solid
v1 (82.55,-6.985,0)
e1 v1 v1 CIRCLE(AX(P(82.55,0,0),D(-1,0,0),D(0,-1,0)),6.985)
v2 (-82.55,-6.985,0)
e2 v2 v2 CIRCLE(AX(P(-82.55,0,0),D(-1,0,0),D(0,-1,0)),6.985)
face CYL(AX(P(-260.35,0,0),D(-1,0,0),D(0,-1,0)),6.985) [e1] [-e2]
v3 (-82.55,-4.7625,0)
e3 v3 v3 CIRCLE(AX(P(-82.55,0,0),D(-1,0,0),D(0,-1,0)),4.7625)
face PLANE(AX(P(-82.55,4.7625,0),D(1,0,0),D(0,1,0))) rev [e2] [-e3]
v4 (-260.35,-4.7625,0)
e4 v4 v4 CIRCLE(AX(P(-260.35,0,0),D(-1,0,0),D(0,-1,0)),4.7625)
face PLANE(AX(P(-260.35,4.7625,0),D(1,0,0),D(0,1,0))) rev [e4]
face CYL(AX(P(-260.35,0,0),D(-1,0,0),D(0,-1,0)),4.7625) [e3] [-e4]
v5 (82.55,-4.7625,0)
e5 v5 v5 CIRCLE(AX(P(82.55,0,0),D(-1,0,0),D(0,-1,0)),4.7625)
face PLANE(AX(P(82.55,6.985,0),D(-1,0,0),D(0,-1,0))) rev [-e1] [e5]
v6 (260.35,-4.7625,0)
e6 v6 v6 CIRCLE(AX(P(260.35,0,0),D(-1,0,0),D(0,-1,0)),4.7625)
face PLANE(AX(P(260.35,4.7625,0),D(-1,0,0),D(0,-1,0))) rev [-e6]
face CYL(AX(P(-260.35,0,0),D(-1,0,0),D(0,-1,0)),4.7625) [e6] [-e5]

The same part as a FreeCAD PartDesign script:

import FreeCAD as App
import Part
import Sketcher
from FreeCAD import Vector
Q = App.Units.Quantity


def add_polygon(sketch, points):
    """Adds a closed chain of lines whose ends are joined by coincident constraints."""
    first, n = sketch.GeometryCount, len(points)
    for a, b in zip(points, points[1:] + points[:1]):
        sketch.addGeometry(Part.LineSegment(App.Vector(*a, 0), App.Vector(*b, 0)), False)
    for i in range(n):
        sketch.addConstraint(Sketcher.Constraint("Coincident", first + i, 2, first + (i + 1) % n, 1))

doc = App.newDocument("Part")
body = doc.addObject("PartDesign::Body", "Body")

# Sketch on XY plane
sketch1 = body.newObject("Sketcher::SketchObject", "Sketch")
sketch1.AttachmentSupport = (doc.getObject("XY_Plane"), [""])
sketch1.MapMode = "FlatFace"
add_polygon(sketch1, [(-82.5, 4.8), (-260.4, 4.8), (-260.4, 0), (260.4, 0), (260.4, 4.8), (82.5, 4.8), (82.5, 7), (-82.5, 7)])  # lines 0-7
sketch1.addConstraint([
    Sketcher.Constraint("Horizontal", 0),
    Sketcher.Constraint("Vertical", 1),
    Sketcher.Constraint("Horizontal", 2),
    Sketcher.Constraint("Vertical", 3),
    Sketcher.Constraint("Horizontal", 4),
    Sketcher.Constraint("Vertical", 5),
    Sketcher.Constraint("Horizontal", 6),
    Sketcher.Constraint("Vertical", 7),
    Sketcher.Constraint("Symmetric", 1, 2, 2, 2, -1, 1),
    Sketcher.Constraint("Symmetric", 4, 2, 7, 2, -2),
    Sketcher.Constraint("DistanceX", 0, 2, 0, 1, Q("7 in")),
    Sketcher.Constraint("DistanceX", 2, 1, 2, 2, Q("20.5 in")),
    Sketcher.Constraint("DistanceY", 1, 2, 1, 1, Q("0.1875 in")),
    Sketcher.Constraint("DistanceY", 5, 1, 5, 2, Q("0.0875 in")),
])
revolution = body.newObject("PartDesign::Revolution", "Revolution")
revolution.Profile = sketch1
revolution.ReferenceAxis = (sketch1, ["H_Axis"])
revolution.Angle = 360

doc.recompute()
